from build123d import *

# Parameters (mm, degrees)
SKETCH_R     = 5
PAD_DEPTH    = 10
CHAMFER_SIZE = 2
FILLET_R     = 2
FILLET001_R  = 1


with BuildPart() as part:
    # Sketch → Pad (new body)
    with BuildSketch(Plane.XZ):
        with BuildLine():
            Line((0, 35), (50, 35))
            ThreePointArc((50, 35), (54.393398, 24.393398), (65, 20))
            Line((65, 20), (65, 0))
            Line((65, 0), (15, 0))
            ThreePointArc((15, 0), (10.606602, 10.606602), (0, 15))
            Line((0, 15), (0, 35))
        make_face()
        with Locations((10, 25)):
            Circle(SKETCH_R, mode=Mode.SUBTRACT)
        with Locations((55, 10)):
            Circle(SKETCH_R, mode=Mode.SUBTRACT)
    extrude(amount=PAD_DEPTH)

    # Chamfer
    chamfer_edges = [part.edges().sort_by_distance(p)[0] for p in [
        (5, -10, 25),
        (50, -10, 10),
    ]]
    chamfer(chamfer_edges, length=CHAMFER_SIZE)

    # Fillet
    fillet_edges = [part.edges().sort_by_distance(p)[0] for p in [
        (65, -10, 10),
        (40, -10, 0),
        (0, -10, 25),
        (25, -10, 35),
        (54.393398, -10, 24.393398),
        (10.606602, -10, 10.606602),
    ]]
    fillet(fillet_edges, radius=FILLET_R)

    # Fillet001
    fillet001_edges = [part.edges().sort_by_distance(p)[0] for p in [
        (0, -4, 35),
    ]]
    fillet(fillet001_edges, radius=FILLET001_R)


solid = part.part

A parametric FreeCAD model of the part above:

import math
import FreeCAD as App
import Part
import Sketcher

V = App.Vector
Q = App.Units.Quantity


def edges_at(feature, points):
    """Names of the edges that pass closest to the given points."""
    edges = feature.Shape.Edges
    near = lambda p: min(range(len(edges)), key=lambda i: edges[i].distToShape(Part.Vertex(*p))[0])
    return sorted({f"Edge{near(p) + 1}" for p in points})

doc = App.newDocument("Part")
body = doc.addObject("PartDesign::Body", "Body")

# Sketch on XZ plane
sketch1 = body.newObject("Sketcher::SketchObject", "Sketch")
sketch1.AttachmentSupport = (doc.getObject("XZ_Plane"), [""])
sketch1.MapMode = "FlatFace"
sketch1.addGeometry([
    Part.LineSegment(V(50, 35, 0), V(0, 35, 0)),  # 0
    Part.LineSegment(V(0, 35, 0), V(0, 15, 0)),  # 1
    Part.ArcOfCircle(Part.Circle(V(0, 0, 0), V(0, 0, 1), 15), math.radians(0), math.radians(90)),  # 2
    Part.LineSegment(V(15, 0, 0), V(65, 0, 0)),  # 3
    Part.LineSegment(V(65, 0, 0), V(65, 20, 0)),  # 4
    Part.ArcOfCircle(Part.Circle(V(65, 35, 0), V(0, 0, 1), 15), math.radians(180), math.radians(270)),  # 5
    Part.Circle(V(55, 10, 0), V(0, 0, 1), 5),  # 6
    Part.Circle(V(10, 25, 0), V(0, 0, 1), 5),  # 7
], False)
sketch1.addConstraint([
    Sketcher.Constraint("Coincident", 0, 2, 1, 1),
    Sketcher.Constraint("Coincident", 1, 2, 2, 2),
    Sketcher.Constraint("Coincident", 2, 1, 3, 1),
    Sketcher.Constraint("Coincident", 3, 2, 4, 1),
    Sketcher.Constraint("Coincident", 4, 2, 5, 2),
    Sketcher.Constraint("Coincident", 5, 1, 0, 1),
    Sketcher.Constraint("Horizontal", 0),
    Sketcher.Constraint("Vertical", 1),
    Sketcher.Constraint("Horizontal", 3),
    Sketcher.Constraint("Vertical", 4),
    Sketcher.Constraint("Coincident", 2, 3, -1, 1),
    Sketcher.Constraint("Equal", 2, 5),
    Sketcher.Constraint("Equal", 6, 7),
    Sketcher.Constraint("PointOnObject", 0, 2, -2),
    Sketcher.Constraint("PointOnObject", 2, 1, -1),
    Sketcher.Constraint("Horizontal", 5, 3, 0, 2),
    Sketcher.Constraint("Vertical", 5, 3, 3, 2),
    Sketcher.Constraint("Diameter", 6, Q("10 mm")),
    Sketcher.Constraint("Radius", 2, Q("14.999999 mm")),
    Sketcher.Constraint("DistanceX", 0, 2, 0, 1, Q("50 mm")),
    Sketcher.Constraint("DistanceY", 1, 2, 1, 1, Q("20 mm")),
    Sketcher.Constraint("DistanceX", -1, 1, 6, 3, Q("55 mm")),
    Sketcher.Constraint("DistanceY", -1, 1, 6, 3, Q("10 mm")),
    Sketcher.Constraint("DistanceX", -1, 1, 7, 3, Q("10 mm")),
    Sketcher.Constraint("DistanceY", -1, 1, 7, 3, Q("25 mm")),
])
pad1 = body.newObject("PartDesign::Pad", "Pad")
pad1.Profile = sketch1
pad1.Length = 10
doc.recompute()

chamfer = body.newObject("PartDesign::Chamfer", "Chamfer")
chamfer.Base = (pad1, edges_at(pad1, [(5, -10, 25), (50, -10, 10)]))
chamfer.Size = 2
doc.recompute()

fillet = body.newObject("PartDesign::Fillet", "Fillet")
fillet.Base = (chamfer, edges_at(chamfer, [
    (65, -10, 10),
    (40, -10, 0),
    (0, -10, 25),
    (25, -10, 35),
    (54.393, -10, 24.393),
    (10.607, -10, 10.607),
]))
fillet.Radius = 2
doc.recompute()

fillet2 = body.newObject("PartDesign::Fillet", "Fillet001")
fillet2.Base = (fillet, edges_at(fillet, [(0, -4, 35)]))
fillet2.Radius = 1

doc.recompute()
